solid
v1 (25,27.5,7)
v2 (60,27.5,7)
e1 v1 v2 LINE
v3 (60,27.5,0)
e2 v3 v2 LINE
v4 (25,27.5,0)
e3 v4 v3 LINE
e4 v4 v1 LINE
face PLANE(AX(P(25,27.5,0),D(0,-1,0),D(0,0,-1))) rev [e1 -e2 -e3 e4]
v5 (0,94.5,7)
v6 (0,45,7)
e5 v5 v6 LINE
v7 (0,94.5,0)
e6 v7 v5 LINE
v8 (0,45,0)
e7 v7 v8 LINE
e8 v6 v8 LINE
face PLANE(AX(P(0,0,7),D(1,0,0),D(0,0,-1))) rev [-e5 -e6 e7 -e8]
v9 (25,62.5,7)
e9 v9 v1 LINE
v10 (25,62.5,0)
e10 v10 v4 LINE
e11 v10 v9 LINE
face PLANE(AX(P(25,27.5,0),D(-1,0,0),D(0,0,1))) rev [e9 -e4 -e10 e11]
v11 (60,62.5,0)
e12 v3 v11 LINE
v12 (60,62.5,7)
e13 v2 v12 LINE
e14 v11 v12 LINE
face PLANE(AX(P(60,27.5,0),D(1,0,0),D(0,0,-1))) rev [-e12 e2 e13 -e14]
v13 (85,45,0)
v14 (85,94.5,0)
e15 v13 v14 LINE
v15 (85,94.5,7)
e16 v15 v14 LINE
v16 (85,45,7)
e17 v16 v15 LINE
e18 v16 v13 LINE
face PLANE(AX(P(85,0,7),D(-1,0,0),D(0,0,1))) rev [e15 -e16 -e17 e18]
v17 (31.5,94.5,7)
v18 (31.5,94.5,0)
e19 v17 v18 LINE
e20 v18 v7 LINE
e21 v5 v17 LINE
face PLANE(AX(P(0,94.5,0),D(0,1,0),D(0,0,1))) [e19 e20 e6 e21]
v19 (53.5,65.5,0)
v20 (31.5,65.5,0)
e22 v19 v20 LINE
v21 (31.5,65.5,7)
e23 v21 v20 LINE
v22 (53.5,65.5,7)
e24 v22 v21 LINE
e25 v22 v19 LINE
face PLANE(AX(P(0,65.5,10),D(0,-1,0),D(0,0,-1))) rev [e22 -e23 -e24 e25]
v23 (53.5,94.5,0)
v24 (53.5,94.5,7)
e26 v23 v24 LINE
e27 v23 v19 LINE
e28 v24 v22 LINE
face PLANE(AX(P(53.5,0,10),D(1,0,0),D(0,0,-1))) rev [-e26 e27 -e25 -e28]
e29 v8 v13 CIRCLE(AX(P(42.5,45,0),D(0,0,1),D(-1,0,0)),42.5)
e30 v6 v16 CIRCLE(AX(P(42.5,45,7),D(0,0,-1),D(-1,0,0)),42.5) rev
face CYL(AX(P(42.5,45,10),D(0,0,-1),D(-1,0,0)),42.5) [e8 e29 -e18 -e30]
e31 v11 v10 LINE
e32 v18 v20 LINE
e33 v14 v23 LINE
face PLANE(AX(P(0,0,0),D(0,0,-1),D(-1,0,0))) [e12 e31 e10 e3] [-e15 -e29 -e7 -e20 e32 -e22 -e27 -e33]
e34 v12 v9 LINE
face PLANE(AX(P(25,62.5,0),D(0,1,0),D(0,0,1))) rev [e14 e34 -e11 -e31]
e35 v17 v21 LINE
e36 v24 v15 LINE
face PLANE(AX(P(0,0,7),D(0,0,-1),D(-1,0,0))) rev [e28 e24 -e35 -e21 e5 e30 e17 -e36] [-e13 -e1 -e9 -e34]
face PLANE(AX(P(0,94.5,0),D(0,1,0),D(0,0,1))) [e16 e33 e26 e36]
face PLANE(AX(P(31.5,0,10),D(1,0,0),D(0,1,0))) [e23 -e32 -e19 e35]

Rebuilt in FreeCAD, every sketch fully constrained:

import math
import FreeCAD as App
import Part
import Sketcher

V = App.Vector
Q = App.Units.Quantity


def add_polygon(sketch, points):
    """Adds a closed chain of lines whose ends are joined by coincident constraints."""
    first, n = sketch.GeometryCount, len(points)
    for a, b in zip(points, points[1:] + points[:1]):
        sketch.addGeometry(Part.LineSegment(App.Vector(*a, 0), App.Vector(*b, 0)), False)
    for i in range(n):
        sketch.addConstraint(Sketcher.Constraint("Coincident", first + i, 2, first + (i + 1) % n, 1))

doc = App.newDocument("Part")
body = doc.addObject("PartDesign::Body", "Body")

sketch1 = body.newObject("Sketcher::SketchObject", "Sketch")
sketch1.AttachmentSupport = (doc.getObject("XY_Plane"), [""])
sketch1.MapMode = "FlatFace"
add_polygon(sketch1, [(0, 95), (0, 0), (85, 0), (85, 95)])
sketch1.addConstraint(Sketcher.Constraint("Vertical", 0))
sketch1.addConstraint(Sketcher.Constraint("Horizontal", 1))
sketch1.addConstraint(Sketcher.Constraint("Vertical", 2))
sketch1.addConstraint(Sketcher.Constraint("Horizontal", 3))
sketch1.addConstraint(Sketcher.Constraint("Coincident", 0, 2, -1, 1))
sketch1.addConstraint(Sketcher.Constraint("DistanceX", 1, 1, 1, 2, Q("85 mm")))
sketch1.addConstraint(Sketcher.Constraint("DistanceY", 0, 2, 0, 1, Q("95 mm")))
pad1 = body.newObject("PartDesign::Pad", "Pad")
pad1.Profile = sketch1
pad1.Length = 7

sketch2 = body.newObject("Sketcher::SketchObject", "Sketch001")
sketch2.AttachmentSupport = (doc.getObject("XY_Plane"), [""])
sketch2.MapMode = "FlatFace"
sketch2.AttachmentOffset = App.Placement(V(0, 0, 7), App.Rotation())
add_polygon(sketch2, [(25, 62), (25, 28), (60, 28), (60, 62)])
sketch2.addConstraint(Sketcher.Constraint("Vertical", 0))
sketch2.addConstraint(Sketcher.Constraint("Horizontal", 1))
sketch2.addConstraint(Sketcher.Constraint("Vertical", 2))
sketch2.addConstraint(Sketcher.Constraint("Horizontal", 3))
sketch2.addConstraint(Sketcher.Constraint("Equal", 3, 0))
sketch2.addConstraint(Sketcher.Constraint("DistanceX", 1, 1, 1, 2, Q("35 mm")))
sketch2.addConstraint(Sketcher.Constraint("DistanceX", -1, 1, 0, 2, Q("25 mm")))
sketch2.addConstraint(Sketcher.Constraint("DistanceY", -1, 1, 0, 2, Q("27.5 mm")))
pocket1 = body.newObject("PartDesign::Pocket", "Pocket")
pocket1.Profile = sketch2
pocket1.Length = 7

sketch3 = body.newObject("Sketcher::SketchObject", "Sketch002")
sketch3.AttachmentSupport = (doc.getObject("XY_Plane"), [""])
sketch3.MapMode = "FlatFace"
sketch3.addGeometry(Part.LineSegment(V(85, 45, 0), V(85, 0, 0)), False)
sketch3.addGeometry(Part.LineSegment(V(85, 0, 0), V(0, 0, 0)), False)
sketch3.addGeometry(Part.LineSegment(V(0, 0, 0), V(0, 45, 0)), False)
sketch3.addGeometry(Part.ArcOfCircle(Part.Circle(V(42, 45, 0), V(0, 0, 1), 42), math.radians(180), math.radians(360)), False)
sketch3.addConstraint(Sketcher.Constraint("Coincident", 0, 2, 1, 1))
sketch3.addConstraint(Sketcher.Constraint("Coincident", 1, 2, 2, 1))
sketch3.addConstraint(Sketcher.Constraint("Tangent", 2, 2, 3, 1))
sketch3.addConstraint(Sketcher.Constraint("Tangent", 3, 2, 0, 1))
sketch3.addConstraint(Sketcher.Constraint("Vertical", 0))
sketch3.addConstraint(Sketcher.Constraint("Horizontal", 1))
sketch3.addConstraint(Sketcher.Constraint("Vertical", 2))
sketch3.addConstraint(Sketcher.Constraint("Coincident", 1, 2, -1, 1))
sketch3.addConstraint(Sketcher.Constraint("Radius", 3, Q("42.5 mm")))
sketch3.addConstraint(Sketcher.Constraint("DistanceY", 0, 2, 0, 1, Q("45 mm")))
pocket2 = body.newObject("PartDesign::Pocket", "Pocket001")
pocket2.Profile = sketch3
pocket2.Length = 10
pocket2.Reversed = True

sketch4 = body.newObject("Sketcher::SketchObject", "Sketch003")
sketch4.AttachmentSupport = (doc.getObject("XY_Plane"), [""])
sketch4.MapMode = "FlatFace"
add_polygon(sketch4, [(54, 95), (54, 66), (32, 66), (32, 95)])
sketch4.addConstraint(Sketcher.Constraint("Vertical", 0))
sketch4.addConstraint(Sketcher.Constraint("Horizontal", 1))
sketch4.addConstraint(Sketcher.Constraint("Vertical", 2))
sketch4.addConstraint(Sketcher.Constraint("Horizontal", 3))
sketch4.addConstraint(Sketcher.Constraint("DistanceX", 1, 2, 1, 1, Q("22 mm")))
sketch4.addConstraint(Sketcher.Constraint("DistanceY", 0, 2, 0, 1, Q("29.5 mm")))
sketch4.addConstraint(Sketcher.Constraint("DistanceY", -1, 1, 2, 2, Q("95 mm")))
sketch4.addConstraint(Sketcher.Constraint("DistanceX", -1, 1, 0, 2, Q("53.5 mm")))
pocket3 = body.newObject("PartDesign::Pocket", "Pocket002")
pocket3.Profile = sketch4
pocket3.Length = 10
pocket3.Reversed = True

sketch5 = body.newObject("Sketcher::SketchObject", "Sketch004")
sketch5.AttachmentSupport = (doc.getObject("XZ_Plane"), [""])
sketch5.MapMode = "FlatFace"
sketch5.AttachmentOffset = App.Placement(V(0, 0, -95), App.Rotation())
add_polygon(sketch5, [(0, 0), (0, 7), (32, 7), (32, 0)])
add_polygon(sketch5, [(54, 0), (54, 7), (85, 7), (85, 0)])
sketch5.addConstraint(Sketcher.Constraint("Vertical", 0))
sketch5.addConstraint(Sketcher.Constraint("Horizontal", 1))
sketch5.addConstraint(Sketcher.Constraint("Vertical", 2))
sketch5.addConstraint(Sketcher.Constraint("Horizontal", 3))
sketch5.addConstraint(Sketcher.Constraint("Vertical", 4))
sketch5.addConstraint(Sketcher.Constraint("Horizontal", 5))
sketch5.addConstraint(Sketcher.Constraint("Vertical", 6))
sketch5.addConstraint(Sketcher.Constraint("Horizontal", 7))
sketch5.addConstraint(Sketcher.Constraint("Coincident", 3, 2, -1, 1))
sketch5.addConstraint(Sketcher.Constraint("PointOnObject", 6, 2, -1))
sketch5.addConstraint(Sketcher.Constraint("Horizontal", 1, 2, 4, 2))
sketch5.addConstraint(Sketcher.Constraint("Equal", 3, 5))
sketch5.addConstraint(Sketcher.Constraint("DistanceY", 0, 1, 0, 2, Q("7 mm")))
sketch5.addConstraint(Sketcher.Constraint("DistanceX", 1, 1, 1, 2, Q("31.5 mm")))
sketch5.addConstraint(Sketcher.Constraint("DistanceX", -1, 1, 5, 2, Q("85 mm")))
pocket4 = body.newObject("PartDesign::Pocket", "Pocket003")
pocket4.Profile = sketch5
pocket4.Length = 0.5
pocket4.Reversed = True

doc.recompute()
